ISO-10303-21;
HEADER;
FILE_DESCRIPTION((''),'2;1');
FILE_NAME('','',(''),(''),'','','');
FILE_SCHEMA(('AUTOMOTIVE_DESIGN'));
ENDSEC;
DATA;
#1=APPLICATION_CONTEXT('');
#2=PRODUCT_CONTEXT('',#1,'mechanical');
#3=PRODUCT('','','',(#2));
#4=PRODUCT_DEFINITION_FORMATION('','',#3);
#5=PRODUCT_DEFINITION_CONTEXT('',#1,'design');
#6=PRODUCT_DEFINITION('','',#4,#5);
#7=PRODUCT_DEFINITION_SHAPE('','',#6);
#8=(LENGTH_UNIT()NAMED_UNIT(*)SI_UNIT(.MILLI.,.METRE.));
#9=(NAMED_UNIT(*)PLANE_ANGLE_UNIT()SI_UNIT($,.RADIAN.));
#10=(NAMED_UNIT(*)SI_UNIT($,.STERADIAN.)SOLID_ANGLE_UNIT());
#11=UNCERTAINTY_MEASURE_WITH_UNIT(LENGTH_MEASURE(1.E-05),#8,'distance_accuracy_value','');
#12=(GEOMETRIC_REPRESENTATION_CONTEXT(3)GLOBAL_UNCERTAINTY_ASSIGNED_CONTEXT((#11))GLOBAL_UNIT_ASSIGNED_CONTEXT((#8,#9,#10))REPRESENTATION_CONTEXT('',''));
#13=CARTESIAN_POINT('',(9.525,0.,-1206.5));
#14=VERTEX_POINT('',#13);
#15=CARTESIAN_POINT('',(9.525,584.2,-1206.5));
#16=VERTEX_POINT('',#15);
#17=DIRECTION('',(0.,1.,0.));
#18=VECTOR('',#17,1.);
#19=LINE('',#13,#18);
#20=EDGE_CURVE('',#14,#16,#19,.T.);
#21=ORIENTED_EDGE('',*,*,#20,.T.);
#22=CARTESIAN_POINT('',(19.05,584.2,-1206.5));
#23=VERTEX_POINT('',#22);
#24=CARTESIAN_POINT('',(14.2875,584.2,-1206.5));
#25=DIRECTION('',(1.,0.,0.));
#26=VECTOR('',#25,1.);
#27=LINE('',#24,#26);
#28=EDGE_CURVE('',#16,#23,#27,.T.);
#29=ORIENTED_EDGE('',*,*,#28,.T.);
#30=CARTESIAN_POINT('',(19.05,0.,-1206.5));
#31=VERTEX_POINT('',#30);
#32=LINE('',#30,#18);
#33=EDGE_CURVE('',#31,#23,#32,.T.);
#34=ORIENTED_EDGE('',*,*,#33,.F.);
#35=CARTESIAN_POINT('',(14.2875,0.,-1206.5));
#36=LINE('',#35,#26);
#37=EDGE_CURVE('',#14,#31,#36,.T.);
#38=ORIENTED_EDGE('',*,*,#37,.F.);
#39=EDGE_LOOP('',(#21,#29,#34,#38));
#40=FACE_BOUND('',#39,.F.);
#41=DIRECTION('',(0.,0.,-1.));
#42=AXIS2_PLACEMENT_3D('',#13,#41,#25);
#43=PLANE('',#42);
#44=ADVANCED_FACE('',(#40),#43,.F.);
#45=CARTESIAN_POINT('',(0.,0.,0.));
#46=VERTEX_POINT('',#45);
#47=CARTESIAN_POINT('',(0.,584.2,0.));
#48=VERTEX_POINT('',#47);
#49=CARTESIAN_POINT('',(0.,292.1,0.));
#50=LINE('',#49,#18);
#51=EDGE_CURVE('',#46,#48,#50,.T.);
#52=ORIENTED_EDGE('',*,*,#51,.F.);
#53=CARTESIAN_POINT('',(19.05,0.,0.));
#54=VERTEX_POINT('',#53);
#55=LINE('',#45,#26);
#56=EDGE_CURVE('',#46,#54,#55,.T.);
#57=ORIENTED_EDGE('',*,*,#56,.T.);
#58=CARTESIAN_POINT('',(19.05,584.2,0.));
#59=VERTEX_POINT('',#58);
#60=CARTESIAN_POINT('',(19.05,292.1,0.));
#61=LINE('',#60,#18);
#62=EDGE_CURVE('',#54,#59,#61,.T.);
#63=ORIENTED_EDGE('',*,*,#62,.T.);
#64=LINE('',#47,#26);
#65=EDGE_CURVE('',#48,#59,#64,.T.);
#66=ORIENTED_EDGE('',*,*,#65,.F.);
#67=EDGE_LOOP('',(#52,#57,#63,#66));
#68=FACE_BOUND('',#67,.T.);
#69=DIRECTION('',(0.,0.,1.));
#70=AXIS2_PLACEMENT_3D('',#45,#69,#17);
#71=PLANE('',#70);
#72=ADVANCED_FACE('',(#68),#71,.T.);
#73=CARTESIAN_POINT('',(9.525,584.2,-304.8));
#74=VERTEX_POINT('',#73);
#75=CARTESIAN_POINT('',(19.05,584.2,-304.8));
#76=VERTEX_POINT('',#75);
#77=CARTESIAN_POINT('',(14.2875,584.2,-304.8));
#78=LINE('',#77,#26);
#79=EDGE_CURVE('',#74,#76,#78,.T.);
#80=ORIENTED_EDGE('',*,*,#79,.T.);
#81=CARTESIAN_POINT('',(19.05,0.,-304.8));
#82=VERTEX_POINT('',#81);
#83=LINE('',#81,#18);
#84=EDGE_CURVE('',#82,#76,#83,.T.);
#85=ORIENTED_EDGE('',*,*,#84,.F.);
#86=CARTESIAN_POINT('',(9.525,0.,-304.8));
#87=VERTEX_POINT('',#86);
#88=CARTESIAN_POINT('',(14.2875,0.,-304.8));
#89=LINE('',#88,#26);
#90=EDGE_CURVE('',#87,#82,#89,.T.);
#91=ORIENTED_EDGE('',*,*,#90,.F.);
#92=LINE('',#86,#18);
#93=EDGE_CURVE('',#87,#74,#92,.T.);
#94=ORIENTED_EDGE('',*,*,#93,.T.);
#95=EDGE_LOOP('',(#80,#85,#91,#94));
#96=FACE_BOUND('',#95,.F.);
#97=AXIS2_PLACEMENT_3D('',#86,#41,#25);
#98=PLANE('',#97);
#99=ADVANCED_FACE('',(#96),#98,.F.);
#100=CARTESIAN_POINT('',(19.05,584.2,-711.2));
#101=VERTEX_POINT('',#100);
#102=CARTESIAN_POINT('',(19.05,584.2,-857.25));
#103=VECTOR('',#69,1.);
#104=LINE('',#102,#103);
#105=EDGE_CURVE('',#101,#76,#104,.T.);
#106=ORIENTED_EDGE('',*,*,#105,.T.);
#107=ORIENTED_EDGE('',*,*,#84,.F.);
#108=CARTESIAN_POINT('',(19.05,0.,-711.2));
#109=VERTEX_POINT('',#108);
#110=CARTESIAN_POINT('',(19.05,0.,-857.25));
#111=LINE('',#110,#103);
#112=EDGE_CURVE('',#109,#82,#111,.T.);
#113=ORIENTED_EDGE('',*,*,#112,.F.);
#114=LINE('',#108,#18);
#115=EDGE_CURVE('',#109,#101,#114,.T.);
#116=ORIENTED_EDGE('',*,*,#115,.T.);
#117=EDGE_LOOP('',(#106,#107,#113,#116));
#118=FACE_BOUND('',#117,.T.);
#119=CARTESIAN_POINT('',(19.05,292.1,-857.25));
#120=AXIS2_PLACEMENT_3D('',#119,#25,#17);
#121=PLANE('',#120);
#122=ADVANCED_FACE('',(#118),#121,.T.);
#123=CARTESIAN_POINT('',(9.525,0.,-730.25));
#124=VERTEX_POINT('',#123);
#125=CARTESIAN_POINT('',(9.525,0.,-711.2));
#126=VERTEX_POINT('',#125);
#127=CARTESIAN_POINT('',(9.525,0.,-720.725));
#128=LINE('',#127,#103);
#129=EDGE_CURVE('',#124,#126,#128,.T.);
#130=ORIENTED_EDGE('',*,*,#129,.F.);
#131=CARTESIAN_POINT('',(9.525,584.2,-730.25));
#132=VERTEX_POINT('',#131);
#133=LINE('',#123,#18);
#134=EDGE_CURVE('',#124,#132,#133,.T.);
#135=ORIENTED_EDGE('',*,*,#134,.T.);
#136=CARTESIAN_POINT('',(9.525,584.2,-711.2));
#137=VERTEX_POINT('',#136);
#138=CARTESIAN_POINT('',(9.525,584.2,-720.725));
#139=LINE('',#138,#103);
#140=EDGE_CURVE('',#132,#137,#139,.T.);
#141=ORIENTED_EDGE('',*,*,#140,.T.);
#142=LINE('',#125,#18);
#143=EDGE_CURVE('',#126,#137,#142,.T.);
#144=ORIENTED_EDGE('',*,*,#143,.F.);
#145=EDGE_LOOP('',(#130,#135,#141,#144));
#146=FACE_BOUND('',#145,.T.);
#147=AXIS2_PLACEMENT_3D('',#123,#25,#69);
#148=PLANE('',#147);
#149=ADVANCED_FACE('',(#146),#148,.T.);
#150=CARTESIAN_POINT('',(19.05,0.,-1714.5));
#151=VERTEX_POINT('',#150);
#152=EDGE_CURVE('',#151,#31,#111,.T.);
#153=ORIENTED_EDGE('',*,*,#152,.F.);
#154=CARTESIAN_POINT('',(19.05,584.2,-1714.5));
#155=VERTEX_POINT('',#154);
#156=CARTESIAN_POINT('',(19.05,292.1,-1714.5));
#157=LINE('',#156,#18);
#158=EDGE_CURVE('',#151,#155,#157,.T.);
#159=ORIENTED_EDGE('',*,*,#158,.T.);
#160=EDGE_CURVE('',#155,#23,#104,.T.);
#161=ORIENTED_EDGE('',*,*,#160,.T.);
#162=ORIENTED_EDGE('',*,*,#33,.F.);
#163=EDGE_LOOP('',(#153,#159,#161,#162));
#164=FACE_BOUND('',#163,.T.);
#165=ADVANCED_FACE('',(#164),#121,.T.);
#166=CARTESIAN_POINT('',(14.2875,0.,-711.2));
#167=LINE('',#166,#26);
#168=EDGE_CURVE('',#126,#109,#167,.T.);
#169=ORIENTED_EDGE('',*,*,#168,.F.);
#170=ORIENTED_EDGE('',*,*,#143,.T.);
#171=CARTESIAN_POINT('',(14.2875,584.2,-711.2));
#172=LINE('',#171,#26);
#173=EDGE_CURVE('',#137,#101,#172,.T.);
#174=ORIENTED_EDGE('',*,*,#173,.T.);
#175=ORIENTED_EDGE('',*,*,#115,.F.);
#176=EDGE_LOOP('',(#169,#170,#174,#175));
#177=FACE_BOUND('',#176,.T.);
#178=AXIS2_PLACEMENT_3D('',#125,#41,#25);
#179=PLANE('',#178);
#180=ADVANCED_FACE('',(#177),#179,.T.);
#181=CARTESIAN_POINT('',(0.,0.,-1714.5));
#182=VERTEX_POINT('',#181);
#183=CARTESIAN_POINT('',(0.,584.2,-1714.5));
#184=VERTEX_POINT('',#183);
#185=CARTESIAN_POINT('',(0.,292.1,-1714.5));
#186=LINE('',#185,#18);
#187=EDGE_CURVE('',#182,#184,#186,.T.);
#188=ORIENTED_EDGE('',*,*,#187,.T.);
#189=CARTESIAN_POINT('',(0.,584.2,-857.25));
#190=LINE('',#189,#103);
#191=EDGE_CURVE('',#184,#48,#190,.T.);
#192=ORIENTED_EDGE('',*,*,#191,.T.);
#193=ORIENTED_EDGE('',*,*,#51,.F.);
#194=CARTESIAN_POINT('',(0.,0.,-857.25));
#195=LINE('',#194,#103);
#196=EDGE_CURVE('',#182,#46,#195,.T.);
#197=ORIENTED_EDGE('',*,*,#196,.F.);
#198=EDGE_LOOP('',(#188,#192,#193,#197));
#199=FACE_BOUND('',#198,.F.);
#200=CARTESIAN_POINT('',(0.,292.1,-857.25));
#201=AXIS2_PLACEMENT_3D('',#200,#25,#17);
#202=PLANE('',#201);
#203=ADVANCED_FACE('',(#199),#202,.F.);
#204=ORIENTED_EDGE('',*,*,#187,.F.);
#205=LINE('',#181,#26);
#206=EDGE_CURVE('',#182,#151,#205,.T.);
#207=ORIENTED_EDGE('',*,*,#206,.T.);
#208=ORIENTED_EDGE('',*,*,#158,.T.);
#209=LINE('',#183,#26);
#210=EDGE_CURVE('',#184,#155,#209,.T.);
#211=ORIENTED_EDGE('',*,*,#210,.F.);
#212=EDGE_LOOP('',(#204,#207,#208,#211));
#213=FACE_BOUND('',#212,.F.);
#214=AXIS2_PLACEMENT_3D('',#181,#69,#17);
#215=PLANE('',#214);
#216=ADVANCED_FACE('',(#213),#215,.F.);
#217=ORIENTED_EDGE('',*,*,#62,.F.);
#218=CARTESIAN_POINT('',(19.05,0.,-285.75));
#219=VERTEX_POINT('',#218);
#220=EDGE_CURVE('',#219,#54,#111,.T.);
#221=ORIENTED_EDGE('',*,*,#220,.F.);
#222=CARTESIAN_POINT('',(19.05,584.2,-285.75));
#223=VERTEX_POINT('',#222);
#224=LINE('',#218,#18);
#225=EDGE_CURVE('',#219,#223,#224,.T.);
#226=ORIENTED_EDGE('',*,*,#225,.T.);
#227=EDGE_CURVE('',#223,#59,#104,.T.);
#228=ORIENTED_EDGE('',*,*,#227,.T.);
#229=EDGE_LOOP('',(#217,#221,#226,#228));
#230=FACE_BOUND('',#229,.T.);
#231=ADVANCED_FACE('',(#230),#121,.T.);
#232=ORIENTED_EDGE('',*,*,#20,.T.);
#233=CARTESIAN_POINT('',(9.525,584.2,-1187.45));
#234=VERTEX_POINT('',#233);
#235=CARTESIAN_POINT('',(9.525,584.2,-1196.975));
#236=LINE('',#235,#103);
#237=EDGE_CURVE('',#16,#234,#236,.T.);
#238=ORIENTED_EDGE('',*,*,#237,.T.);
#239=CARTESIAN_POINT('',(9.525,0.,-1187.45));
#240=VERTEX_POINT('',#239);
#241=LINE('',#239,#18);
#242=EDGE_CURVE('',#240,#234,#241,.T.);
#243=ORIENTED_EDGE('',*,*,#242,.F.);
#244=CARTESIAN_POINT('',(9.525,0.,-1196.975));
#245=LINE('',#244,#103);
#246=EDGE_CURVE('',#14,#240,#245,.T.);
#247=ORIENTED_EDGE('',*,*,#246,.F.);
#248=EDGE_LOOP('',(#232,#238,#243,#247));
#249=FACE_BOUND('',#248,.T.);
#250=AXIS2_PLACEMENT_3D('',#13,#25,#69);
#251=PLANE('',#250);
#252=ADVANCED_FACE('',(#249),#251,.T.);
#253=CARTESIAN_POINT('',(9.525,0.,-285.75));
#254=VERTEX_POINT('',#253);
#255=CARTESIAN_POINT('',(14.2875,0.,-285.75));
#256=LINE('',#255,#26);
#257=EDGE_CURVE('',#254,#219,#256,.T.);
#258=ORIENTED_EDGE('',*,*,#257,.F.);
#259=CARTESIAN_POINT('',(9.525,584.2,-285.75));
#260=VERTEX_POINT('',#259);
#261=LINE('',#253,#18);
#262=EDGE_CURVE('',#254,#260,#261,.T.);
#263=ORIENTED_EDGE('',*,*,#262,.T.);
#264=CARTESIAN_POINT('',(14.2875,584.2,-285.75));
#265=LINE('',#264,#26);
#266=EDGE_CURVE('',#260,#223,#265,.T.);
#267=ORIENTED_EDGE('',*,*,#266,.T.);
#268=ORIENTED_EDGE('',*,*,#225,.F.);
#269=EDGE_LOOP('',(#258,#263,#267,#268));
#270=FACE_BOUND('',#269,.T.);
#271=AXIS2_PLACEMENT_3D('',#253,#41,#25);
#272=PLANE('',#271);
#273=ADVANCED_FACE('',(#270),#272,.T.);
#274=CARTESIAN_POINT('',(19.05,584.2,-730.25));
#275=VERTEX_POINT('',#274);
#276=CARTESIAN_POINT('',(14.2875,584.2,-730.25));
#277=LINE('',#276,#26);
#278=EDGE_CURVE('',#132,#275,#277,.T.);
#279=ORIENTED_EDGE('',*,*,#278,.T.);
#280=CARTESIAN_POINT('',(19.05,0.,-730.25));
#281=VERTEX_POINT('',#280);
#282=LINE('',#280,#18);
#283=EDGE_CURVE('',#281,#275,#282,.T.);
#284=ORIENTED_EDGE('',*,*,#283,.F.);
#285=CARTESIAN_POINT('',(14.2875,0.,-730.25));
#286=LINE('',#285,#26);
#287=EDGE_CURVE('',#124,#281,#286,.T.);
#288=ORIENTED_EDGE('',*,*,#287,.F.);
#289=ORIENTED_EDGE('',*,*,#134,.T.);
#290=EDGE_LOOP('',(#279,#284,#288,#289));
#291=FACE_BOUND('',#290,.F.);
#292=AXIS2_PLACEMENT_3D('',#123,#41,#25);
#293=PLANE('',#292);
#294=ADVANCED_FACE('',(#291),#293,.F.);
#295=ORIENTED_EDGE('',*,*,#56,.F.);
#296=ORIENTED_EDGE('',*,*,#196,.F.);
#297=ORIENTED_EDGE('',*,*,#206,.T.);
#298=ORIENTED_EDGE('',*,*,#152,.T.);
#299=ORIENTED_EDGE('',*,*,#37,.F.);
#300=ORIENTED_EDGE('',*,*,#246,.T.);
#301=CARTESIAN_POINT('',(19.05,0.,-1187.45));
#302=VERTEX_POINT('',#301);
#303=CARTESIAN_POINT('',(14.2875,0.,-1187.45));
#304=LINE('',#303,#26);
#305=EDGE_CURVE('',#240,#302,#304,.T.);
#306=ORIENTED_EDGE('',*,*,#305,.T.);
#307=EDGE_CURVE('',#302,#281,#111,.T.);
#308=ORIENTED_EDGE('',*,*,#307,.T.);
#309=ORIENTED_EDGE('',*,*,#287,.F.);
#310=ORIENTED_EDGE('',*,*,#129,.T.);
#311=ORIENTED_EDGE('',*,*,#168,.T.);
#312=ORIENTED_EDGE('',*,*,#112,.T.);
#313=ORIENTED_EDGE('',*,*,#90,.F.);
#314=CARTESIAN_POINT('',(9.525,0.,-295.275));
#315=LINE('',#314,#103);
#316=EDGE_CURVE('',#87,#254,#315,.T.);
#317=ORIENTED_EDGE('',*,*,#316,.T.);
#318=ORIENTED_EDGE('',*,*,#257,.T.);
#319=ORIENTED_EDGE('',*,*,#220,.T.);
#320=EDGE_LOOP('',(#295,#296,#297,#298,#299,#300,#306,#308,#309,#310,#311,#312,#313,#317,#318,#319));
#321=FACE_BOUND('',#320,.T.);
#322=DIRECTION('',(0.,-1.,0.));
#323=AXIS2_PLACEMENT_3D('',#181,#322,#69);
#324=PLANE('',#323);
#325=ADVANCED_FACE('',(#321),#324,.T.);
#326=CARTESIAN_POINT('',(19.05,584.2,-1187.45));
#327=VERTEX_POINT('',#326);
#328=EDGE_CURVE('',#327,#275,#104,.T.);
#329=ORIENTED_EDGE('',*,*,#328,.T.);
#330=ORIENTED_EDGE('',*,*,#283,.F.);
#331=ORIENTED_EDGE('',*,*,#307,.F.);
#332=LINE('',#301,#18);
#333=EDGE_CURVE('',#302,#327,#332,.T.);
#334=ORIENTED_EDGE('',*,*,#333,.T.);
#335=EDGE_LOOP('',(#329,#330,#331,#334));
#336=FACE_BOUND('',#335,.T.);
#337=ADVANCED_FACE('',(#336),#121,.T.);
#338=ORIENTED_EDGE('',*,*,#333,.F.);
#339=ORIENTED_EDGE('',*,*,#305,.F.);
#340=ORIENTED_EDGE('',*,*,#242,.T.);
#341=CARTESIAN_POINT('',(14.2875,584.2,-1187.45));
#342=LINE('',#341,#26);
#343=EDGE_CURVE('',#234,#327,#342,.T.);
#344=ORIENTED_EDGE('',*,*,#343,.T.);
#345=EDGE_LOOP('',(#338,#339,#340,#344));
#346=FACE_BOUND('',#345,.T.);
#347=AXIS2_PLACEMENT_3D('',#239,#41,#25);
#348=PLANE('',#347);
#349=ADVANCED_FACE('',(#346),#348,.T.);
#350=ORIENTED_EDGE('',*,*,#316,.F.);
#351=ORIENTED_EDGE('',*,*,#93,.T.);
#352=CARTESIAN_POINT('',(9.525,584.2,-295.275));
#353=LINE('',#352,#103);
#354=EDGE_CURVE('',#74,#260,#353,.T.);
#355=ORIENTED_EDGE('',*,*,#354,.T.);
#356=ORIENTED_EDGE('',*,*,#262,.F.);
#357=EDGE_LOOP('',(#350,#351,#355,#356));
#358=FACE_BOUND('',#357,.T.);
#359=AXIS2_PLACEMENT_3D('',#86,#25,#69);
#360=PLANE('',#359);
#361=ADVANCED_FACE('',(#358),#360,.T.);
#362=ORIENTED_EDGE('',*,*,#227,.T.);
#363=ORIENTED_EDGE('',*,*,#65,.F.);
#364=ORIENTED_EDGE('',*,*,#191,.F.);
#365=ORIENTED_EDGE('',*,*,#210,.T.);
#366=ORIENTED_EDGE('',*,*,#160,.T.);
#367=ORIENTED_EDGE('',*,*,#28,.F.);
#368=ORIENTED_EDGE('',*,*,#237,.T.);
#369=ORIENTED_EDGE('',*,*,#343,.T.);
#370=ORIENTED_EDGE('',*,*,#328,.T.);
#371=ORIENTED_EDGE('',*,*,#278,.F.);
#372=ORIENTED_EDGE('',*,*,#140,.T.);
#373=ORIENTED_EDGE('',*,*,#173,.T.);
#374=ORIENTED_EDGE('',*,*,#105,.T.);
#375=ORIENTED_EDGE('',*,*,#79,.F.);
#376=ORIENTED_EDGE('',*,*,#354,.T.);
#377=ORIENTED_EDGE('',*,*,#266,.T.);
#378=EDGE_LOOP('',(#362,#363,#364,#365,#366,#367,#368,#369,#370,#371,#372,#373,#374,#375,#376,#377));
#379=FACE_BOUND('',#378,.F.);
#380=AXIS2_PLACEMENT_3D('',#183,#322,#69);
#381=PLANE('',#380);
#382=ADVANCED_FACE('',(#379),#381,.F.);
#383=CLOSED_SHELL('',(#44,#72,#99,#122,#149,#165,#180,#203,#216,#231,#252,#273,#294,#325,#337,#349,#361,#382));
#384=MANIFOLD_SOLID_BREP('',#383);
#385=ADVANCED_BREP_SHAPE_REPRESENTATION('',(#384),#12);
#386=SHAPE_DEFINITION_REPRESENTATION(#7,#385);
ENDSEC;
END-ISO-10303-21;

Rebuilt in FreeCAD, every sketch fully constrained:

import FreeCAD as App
import Part
import Sketcher

V = App.Vector
Q = App.Units.Quantity

doc = App.newDocument("Part")
body = doc.addObject("PartDesign::Body", "Body")

sketch1 = body.newObject("Sketcher::SketchObject", "Sketch")
sketch1.AttachmentSupport = (doc.getObject("YZ_Plane"), [""])
sketch1.MapMode = "FlatFace"
sketch1.addGeometry([
    Part.LineSegment(V(0, 0, 0), V(0, -1714, 0)),
    Part.LineSegment(V(0, -1714, 0), V(584, -1714, 0)),
    Part.LineSegment(V(584, -1714, 0), V(584, 0, 0)),
    Part.LineSegment(V(584, 0, 0), V(0, 0, 0)),
], False)
sketch1.addConstraint([
    Sketcher.Constraint("Coincident", 0, 2, 1, 1),
    Sketcher.Constraint("Coincident", 1, 2, 2, 1),
    Sketcher.Constraint("Coincident", 2, 2, 3, 1),
    Sketcher.Constraint("Coincident", 3, 2, 0, 1),
    Sketcher.Constraint("Vertical", 0),
    Sketcher.Constraint("Horizontal", 1),
    Sketcher.Constraint("Vertical", 2),
    Sketcher.Constraint("Horizontal", 3),
    Sketcher.Constraint("Coincident", 3, 2, -1, 1),
    Sketcher.Constraint("DistanceX", 1, 1, 1, 2, Q("23 in")),
    Sketcher.Constraint("DistanceY", 0, 2, 0, 1, Q("67.5 in")),
])
pad1 = body.newObject("PartDesign::Pad", "Pad")
pad1.Profile = sketch1
pad1.Length = Q("0.75 in")

sketch2 = body.newObject("Sketcher::SketchObject", "Sketch001")
sketch2.AttachmentSupport = (doc.getObject("XZ_Plane"), [""])
sketch2.MapMode = "FlatFace"
sketch2.addGeometry([
    Part.LineSegment(V(10, -286, 0), V(10, -305, 0)),
    Part.LineSegment(V(10, -305, 0), V(19, -305, 0)),
    Part.LineSegment(V(19, -305, 0), V(19, -286, 0)),
    Part.LineSegment(V(19, -286, 0), V(10, -286, 0)),
    Part.LineSegment(V(10, -711, 0), V(10, -730, 0)),
    Part.LineSegment(V(10, -730, 0), V(19, -730, 0)),
    Part.LineSegment(V(19, -730, 0), V(19, -711, 0)),
    Part.LineSegment(V(19, -711, 0), V(10, -711, 0)),
    Part.LineSegment(V(10, -1187, 0), V(10, -1206, 0)),
    Part.LineSegment(V(10, -1206, 0), V(19, -1206, 0)),
    Part.LineSegment(V(19, -1206, 0), V(19, -1187, 0)),
    Part.LineSegment(V(19, -1187, 0), V(10, -1187, 0)),
], False)
sketch2.addConstraint([
    Sketcher.Constraint("Coincident", 0, 2, 1, 1),
    Sketcher.Constraint("Coincident", 1, 2, 2, 1),
    Sketcher.Constraint("Coincident", 2, 2, 3, 1),
    Sketcher.Constraint("Coincident", 3, 2, 0, 1),
    Sketcher.Constraint("Coincident", 4, 2, 5, 1),
    Sketcher.Constraint("Coincident", 5, 2, 6, 1),
    Sketcher.Constraint("Coincident", 6, 2, 7, 1),
    Sketcher.Constraint("Coincident", 7, 2, 4, 1),
    Sketcher.Constraint("Coincident", 8, 2, 9, 1),
    Sketcher.Constraint("Coincident", 9, 2, 10, 1),
    Sketcher.Constraint("Coincident", 10, 2, 11, 1),
    Sketcher.Constraint("Coincident", 11, 2, 8, 1),
    Sketcher.Constraint("Vertical", 0),
    Sketcher.Constraint("Horizontal", 1),
    Sketcher.Constraint("Vertical", 2),
    Sketcher.Constraint("Horizontal", 3),
    Sketcher.Constraint("Vertical", 4),
    Sketcher.Constraint("Horizontal", 5),
    Sketcher.Constraint("Vertical", 6),
    Sketcher.Constraint("Horizontal", 7),
    Sketcher.Constraint("Vertical", 8),
    Sketcher.Constraint("Horizontal", 9),
    Sketcher.Constraint("Vertical", 10),
    Sketcher.Constraint("Horizontal", 11),
    Sketcher.Constraint("Vertical", 3, 2, 4, 2),
    Sketcher.Constraint("Vertical", 2, 2, 5, 2),
    Sketcher.Constraint("Vertical", 7, 2, 8, 2),
    Sketcher.Constraint("Vertical", 6, 2, 9, 2),
    Sketcher.Constraint("Equal", 2, 4),
    Sketcher.Constraint("Equal", 6, 8),
    Sketcher.Constraint("DistanceY", 0, 2, -1, 1, Q("12 in")),
    Sketcher.Constraint("DistanceY", 6, 2, -1, 1, Q("28 in")),
    Sketcher.Constraint("DistanceY", 10, 2, 5, 2, Q("18 in")),
    Sketcher.Constraint("DistanceY", 0, 2, 0, 1, Q("0.75 in")),
    Sketcher.Constraint("DistanceX", 1, 1, 1, 2, Q("0.375 in")),
    Sketcher.Constraint("DistanceX", -1, 1, 1, 2, Q("0.75 in")),
])
pocket1 = body.newObject("PartDesign::Pocket", "Pocket")
pocket1.Profile = sketch2
pocket1.Length = Q("23 in")

doc.recompute()
